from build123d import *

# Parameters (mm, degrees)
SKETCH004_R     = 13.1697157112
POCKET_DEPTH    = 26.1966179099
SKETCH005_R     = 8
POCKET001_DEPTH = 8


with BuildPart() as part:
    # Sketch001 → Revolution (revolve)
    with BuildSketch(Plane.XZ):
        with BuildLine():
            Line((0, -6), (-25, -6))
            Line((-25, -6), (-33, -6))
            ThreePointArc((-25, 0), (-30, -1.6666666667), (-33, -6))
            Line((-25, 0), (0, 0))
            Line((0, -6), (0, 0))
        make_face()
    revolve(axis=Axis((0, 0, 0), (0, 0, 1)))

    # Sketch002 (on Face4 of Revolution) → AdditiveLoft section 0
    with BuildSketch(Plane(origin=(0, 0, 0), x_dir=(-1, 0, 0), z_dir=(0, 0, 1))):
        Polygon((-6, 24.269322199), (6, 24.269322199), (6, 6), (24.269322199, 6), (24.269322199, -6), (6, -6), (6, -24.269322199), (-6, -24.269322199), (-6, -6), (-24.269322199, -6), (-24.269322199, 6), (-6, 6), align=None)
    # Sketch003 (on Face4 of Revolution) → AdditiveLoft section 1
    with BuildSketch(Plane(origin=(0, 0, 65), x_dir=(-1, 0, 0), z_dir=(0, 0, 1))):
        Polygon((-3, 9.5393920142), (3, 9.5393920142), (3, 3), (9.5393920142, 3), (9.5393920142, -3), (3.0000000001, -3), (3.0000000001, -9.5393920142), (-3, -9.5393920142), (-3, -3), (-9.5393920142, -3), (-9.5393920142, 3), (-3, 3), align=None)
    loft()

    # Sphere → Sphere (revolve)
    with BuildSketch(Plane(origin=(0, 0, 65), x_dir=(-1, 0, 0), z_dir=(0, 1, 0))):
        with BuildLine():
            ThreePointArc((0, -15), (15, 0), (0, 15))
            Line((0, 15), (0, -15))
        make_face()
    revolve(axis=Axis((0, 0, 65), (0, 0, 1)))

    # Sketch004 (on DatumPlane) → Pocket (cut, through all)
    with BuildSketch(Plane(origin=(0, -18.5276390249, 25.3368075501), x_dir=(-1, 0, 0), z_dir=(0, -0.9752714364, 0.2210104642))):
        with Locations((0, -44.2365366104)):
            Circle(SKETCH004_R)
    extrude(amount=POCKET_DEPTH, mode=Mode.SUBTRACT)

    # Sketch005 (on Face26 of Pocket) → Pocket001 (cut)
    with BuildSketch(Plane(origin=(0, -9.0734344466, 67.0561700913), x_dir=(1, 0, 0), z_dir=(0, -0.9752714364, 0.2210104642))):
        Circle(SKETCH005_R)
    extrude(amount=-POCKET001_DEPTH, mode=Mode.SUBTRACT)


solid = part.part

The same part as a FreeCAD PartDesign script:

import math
import FreeCAD as App
import Part
import Sketcher


def add_polygon(sketch, points):
    """Adds a closed chain of lines whose ends are joined by coincident constraints."""
    first, n = sketch.GeometryCount, len(points)
    for a, b in zip(points, points[1:] + points[:1]):
        sketch.addGeometry(Part.LineSegment(App.Vector(*a, 0), App.Vector(*b, 0)), False)
    for i in range(n):
        sketch.addConstraint(Sketcher.Constraint("Coincident", first + i, 2, first + (i + 1) % n, 1))

doc = App.newDocument("Part")
body = doc.addObject("PartDesign::Body", "Body")

# Sketch on XZ plane
sketch1 = body.newObject("Sketcher::SketchObject", "Sketch")
sketch1.AttachmentSupport = (doc.getObject("XZ_Plane"), [""])
sketch1.MapMode = "FlatFace"
sketch1.addGeometry([
    Part.LineSegment(App.Vector(-33, -6, 0), App.Vector(0, -6, 0)),
    Part.LineSegment(App.Vector(0, -6, 0), App.Vector(0, 0, 0)),
    Part.LineSegment(App.Vector(0, 0, 0), App.Vector(-25, 0, 0)),
    Part.ArcOfCircle(Part.Circle(App.Vector(-25, -8, 0), App.Vector(0, 0, 1), 8), math.radians(90), math.radians(164)),
], False)
sketch1.addConstraint([
    Sketcher.Constraint("Coincident", 0, 2, 1, 1),
    Sketcher.Constraint("Coincident", 1, 2, 2, 1),
    Sketcher.Constraint("Tangent", 2, 2, 3, 1),
    Sketcher.Constraint("Coincident", 3, 2, 0, 1),
    Sketcher.Constraint("Horizontal", 0),
    Sketcher.Constraint("Vertical", 1),
    Sketcher.Constraint("Horizontal", 2),
    Sketcher.Constraint("Coincident", 1, 2, -1, 1),
    Sketcher.Constraint("DistanceX", 0, 1, 0, 2, 33.0),
    Sketcher.Constraint("DistanceX", 2, 2, 2, 1, 25.0),
    Sketcher.Constraint("DistanceY", 1, 1, 1, 2, 6.0),
])
revolution = body.newObject("PartDesign::Revolution", "Revolution")
revolution.Profile = sketch1
revolution.ReferenceAxis = (sketch1, ["V_Axis"])
revolution.Angle = 360

# Sketch on XY plane
sketch2 = body.newObject("Sketcher::SketchObject", "Sketch001")
sketch2.AttachmentSupport = (doc.getObject("XY_Plane"), [""])
sketch2.MapMode = "FlatFace"
add_polygon(sketch2, [(-6, -24), (6, -24), (6, -6), (24, -6), (24, 6), (6, 6), (6, 24), (-6, 24), (-6, 6), (-24, 6), (-24, -6), (-6, -6)])  # lines 0-11
sketch2.addConstraint([
    Sketcher.Constraint("Horizontal", 0),
    Sketcher.Constraint("Vertical", 1),
    Sketcher.Constraint("Horizontal", 2),
    Sketcher.Constraint("Vertical", 3),
    Sketcher.Constraint("Horizontal", 4),
    Sketcher.Constraint("Vertical", 5),
    Sketcher.Constraint("Horizontal", 6),
    Sketcher.Constraint("Vertical", 7),
    Sketcher.Constraint("Horizontal", 8),
    Sketcher.Constraint("Vertical", 9),
    Sketcher.Constraint("Horizontal", 10),
    Sketcher.Constraint("Vertical", 11),
    Sketcher.Constraint("Symmetric", 0, 2, 6, 2, -1, 1),
    Sketcher.Constraint("Symmetric", 2, 2, 8, 2, -1, 1),
    Sketcher.Constraint("Symmetric", 4, 2, 10, 2, -1, 1),
    Sketcher.Constraint("Symmetric", 4, 2, 7, 2, -2),
    Sketcher.Constraint("Equal", 10, 1),
    Sketcher.Constraint("Equal", 6, 3),
    Sketcher.Constraint("DistanceX", 0, 1, 0, 2, 12.0),
    Sketcher.Constraint("DistanceX", 2, 1, 2, 2, 18.269322),
])

# Sketch on XY plane
sketch3 = body.newObject("Sketcher::SketchObject", "Sketch002")
sketch3.AttachmentSupport = (doc.getObject("XY_Plane"), [""])
sketch3.MapMode = "FlatFace"
sketch3.AttachmentOffset = App.Placement(App.Vector(0, 0, 65), App.Rotation())
add_polygon(sketch3, [(-3, -10), (3, -10), (3, -3), (10, -3), (10, 3), (3, 3), (3, 10), (-3, 10), (-3, 3), (-10, 3), (-10, -3), (-3, -3)])  # lines 0-11
sketch3.addConstraint([
    Sketcher.Constraint("Horizontal", 0),
    Sketcher.Constraint("Vertical", 1),
    Sketcher.Constraint("Horizontal", 2),
    Sketcher.Constraint("Vertical", 3),
    Sketcher.Constraint("Horizontal", 4),
    Sketcher.Constraint("Vertical", 5),
    Sketcher.Constraint("Horizontal", 6),
    Sketcher.Constraint("Vertical", 7),
    Sketcher.Constraint("Horizontal", 8),
    Sketcher.Constraint("Vertical", 9),
    Sketcher.Constraint("Horizontal", 10),
    Sketcher.Constraint("Vertical", 11),
    Sketcher.Constraint("Symmetric", 0, 2, 6, 2, -1, 1),
    Sketcher.Constraint("Symmetric", 2, 2, 8, 2, -1, 1),
    Sketcher.Constraint("Symmetric", 4, 2, 10, 2, -1, 1),
    Sketcher.Constraint("Symmetric", 4, 2, 7, 2, -2),
    Sketcher.Constraint("Equal", 10, 1),
    Sketcher.Constraint("Equal", 6, 3),
    Sketcher.Constraint("DistanceX", 0, 1, 0, 2, 6.0),
    Sketcher.Constraint("DistanceX", 2, 1, 2, 2, 6.539392),
])

additiveloft = body.newObject("PartDesign::AdditiveLoft", "AdditiveLoft")
additiveloft.Profile = sketch2
additiveloft.Sections = [sketch3]

# Sketch on XZ plane
sketch4 = body.newObject("Sketcher::SketchObject", "Sketch003")
sketch4.AttachmentSupport = (doc.getObject("XZ_Plane"), [""])
sketch4.MapMode = "FlatFace"
sketch4.addGeometry([
    Part.ArcOfCircle(Part.Circle(App.Vector(0, 65, 0), App.Vector(0, 0, 1), 15), math.radians(90), math.radians(270)),
    Part.LineSegment(App.Vector(0, 80, 0), App.Vector(0, 50, 0)),
], False)
sketch4.addConstraint([
    Sketcher.Constraint("Coincident", 0, 1, 1, 1),
    Sketcher.Constraint("Coincident", 1, 2, 0, 2),
    Sketcher.Constraint("Vertical", 1),
    Sketcher.Constraint("PointOnObject", 0, 3, -2),
    Sketcher.Constraint("PointOnObject", 0, 1, -2),
    Sketcher.Constraint("Radius", 0, 15.0),
    Sketcher.Constraint("DistanceY", -1, 1, 0, 3, 65.0),
])
revolution2 = body.newObject("PartDesign::Revolution", "Revolution001")
revolution2.Profile = sketch4
revolution2.ReferenceAxis = (sketch4, ["V_Axis"])
revolution2.Angle = 360

# Sketch on an angled plane
sketch5 = body.newObject("Sketcher::SketchObject", "Sketch004")
sketch5.Placement = App.Placement(App.Vector(0, -18.527639, 25.336808), App.Rotation(App.Vector(-1, 0, 0), App.Vector(0, -0.221010464, -0.975271436), App.Vector(0, -0.975271436, 0.221010464), "ZXY"))
sketch5.addGeometry(Part.Circle(App.Vector(0, -44, 0), App.Vector(0, 0, 1), 13), False)
sketch5.addConstraint([
    Sketcher.Constraint("PointOnObject", 0, 3, -2),
    Sketcher.Constraint("Diameter", 0, 26.339431),
    Sketcher.Constraint("DistanceY", 0, 3, -1, 1, 44.236537),
])
pocket1 = body.newObject("PartDesign::Pocket", "Pocket")
pocket1.Profile = sketch5
pocket1.Type = "ThroughAll"
pocket1.Reversed = True

# Sketch on an angled plane
sketch6 = body.newObject("Sketcher::SketchObject", "Sketch005")
sketch6.Placement = App.Placement(App.Vector(0, -9.073434, 67.05617), App.Rotation(App.Vector(1, 0, 0), App.Vector(0, 0.221010464, 0.975271436), App.Vector(0, -0.975271436, 0.221010464), "ZXY"))
sketch6.addGeometry(Part.Circle(App.Vector(0, 0, 0), App.Vector(0, 0, 1), 8), False)
sketch6.addConstraint([
    Sketcher.Constraint("Coincident", 0, 3, -1, 1),
    Sketcher.Constraint("Diameter", 0, 16.0),
])
pocket2 = body.newObject("PartDesign::Pocket", "Pocket001")
pocket2.Profile = sketch6
pocket2.Length = 8

doc.recompute()
